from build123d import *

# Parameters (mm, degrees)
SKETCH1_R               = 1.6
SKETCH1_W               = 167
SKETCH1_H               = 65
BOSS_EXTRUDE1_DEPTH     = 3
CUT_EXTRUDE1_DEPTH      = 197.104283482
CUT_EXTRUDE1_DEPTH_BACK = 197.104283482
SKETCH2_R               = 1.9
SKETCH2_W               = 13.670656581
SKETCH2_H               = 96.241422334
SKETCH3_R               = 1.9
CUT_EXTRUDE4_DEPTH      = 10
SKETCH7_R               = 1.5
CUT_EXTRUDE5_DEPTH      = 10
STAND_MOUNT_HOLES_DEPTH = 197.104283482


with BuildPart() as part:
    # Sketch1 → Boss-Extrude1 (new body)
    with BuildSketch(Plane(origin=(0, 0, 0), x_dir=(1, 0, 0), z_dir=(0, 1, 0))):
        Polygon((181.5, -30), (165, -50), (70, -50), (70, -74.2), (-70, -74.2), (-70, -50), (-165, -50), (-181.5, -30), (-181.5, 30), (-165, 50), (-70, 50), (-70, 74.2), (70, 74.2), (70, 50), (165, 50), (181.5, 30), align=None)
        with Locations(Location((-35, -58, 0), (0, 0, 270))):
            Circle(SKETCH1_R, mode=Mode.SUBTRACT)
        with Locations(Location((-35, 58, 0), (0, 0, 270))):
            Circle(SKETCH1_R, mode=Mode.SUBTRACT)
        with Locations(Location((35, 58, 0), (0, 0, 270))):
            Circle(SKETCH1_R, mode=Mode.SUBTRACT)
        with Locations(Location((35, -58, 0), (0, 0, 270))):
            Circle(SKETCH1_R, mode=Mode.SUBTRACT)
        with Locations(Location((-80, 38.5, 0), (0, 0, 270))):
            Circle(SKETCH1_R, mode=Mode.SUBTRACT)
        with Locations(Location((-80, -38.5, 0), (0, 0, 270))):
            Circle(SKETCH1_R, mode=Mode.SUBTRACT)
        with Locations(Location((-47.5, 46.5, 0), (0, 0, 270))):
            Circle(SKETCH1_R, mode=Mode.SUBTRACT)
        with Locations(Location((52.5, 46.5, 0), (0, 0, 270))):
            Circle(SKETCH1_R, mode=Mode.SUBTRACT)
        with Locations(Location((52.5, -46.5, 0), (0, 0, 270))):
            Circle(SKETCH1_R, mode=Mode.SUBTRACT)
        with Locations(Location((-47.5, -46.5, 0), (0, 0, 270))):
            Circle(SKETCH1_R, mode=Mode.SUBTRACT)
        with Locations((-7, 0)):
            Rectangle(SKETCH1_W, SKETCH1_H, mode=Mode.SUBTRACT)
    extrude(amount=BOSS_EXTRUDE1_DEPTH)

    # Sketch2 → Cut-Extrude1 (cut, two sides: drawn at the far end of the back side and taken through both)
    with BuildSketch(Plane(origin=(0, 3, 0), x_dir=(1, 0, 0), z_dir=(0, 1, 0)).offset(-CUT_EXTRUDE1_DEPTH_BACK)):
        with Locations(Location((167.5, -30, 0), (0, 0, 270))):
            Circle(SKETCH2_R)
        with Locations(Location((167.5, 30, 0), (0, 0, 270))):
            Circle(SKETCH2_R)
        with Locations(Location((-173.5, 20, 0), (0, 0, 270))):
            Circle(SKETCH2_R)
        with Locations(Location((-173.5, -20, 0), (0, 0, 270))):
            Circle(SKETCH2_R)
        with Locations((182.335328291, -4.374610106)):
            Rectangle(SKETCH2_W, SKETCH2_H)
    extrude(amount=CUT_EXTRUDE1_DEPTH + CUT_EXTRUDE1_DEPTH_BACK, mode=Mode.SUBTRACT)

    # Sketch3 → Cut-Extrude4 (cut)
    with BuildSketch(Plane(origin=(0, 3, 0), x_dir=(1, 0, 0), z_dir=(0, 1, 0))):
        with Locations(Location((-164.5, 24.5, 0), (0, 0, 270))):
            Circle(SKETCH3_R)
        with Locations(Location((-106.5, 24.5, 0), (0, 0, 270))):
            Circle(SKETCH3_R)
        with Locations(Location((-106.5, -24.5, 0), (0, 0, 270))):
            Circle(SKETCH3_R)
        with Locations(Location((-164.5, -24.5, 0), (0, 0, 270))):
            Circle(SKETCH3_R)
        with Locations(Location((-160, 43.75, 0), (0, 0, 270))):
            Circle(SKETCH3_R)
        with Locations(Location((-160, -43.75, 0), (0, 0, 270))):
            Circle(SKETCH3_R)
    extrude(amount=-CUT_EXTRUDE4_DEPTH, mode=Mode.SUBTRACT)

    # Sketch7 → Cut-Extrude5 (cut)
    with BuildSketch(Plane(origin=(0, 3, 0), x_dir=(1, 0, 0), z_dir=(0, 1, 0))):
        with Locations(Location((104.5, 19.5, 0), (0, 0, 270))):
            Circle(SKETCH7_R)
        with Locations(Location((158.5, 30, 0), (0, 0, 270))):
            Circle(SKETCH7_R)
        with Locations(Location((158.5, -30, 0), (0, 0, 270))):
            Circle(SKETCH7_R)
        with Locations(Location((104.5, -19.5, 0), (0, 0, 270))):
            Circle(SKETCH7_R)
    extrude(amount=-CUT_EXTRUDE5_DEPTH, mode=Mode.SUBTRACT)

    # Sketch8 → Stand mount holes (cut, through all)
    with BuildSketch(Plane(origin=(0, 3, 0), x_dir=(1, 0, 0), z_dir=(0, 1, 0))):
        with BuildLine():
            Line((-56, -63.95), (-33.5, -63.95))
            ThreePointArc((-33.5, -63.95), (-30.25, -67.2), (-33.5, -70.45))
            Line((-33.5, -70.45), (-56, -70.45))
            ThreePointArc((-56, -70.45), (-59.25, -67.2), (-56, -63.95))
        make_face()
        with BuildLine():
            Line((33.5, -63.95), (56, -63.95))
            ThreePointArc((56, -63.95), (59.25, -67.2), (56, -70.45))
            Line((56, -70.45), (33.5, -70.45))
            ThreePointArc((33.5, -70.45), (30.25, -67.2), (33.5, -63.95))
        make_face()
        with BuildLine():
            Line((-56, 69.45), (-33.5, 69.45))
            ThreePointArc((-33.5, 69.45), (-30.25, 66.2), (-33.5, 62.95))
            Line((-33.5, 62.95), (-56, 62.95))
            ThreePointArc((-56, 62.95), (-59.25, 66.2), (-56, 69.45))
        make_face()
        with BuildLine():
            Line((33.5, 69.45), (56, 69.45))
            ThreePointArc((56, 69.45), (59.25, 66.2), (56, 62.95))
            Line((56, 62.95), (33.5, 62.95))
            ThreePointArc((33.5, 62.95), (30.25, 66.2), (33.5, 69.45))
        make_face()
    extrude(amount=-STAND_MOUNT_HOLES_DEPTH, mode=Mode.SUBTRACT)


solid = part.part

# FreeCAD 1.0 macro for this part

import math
import FreeCAD as App
import Part
import Sketcher

V = App.Vector
Q = App.Units.Quantity


def add_polygon(sketch, points):
    """Adds a closed chain of lines whose ends are joined by coincident constraints."""
    first, n = sketch.GeometryCount, len(points)
    for a, b in zip(points, points[1:] + points[:1]):
        sketch.addGeometry(Part.LineSegment(App.Vector(*a, 0), App.Vector(*b, 0)), False)
    for i in range(n):
        sketch.addConstraint(Sketcher.Constraint("Coincident", first + i, 2, first + (i + 1) % n, 1))

doc = App.newDocument("Part")
body = doc.addObject("PartDesign::Body", "Body")

# Sketch on XZ plane
sketch1 = doc.addObject("Sketcher::SketchObject", "Sketch")
body.addObject(sketch1)
sketch1.AttachmentSupport = (doc.XZ_Plane, [""])
sketch1.MapMode = "FlatFace"
add_polygon(sketch1, [(165, 50), (181.5, 30), (181.5, -30), (165, -50), (70, -50), (70, -74.2), (-70, -74.2), (-70, -50), (-165, -50), (-181.5, -30), (-181.5, 30), (-165, 50), (-70, 50), (-70, 74.2), (70, 74.2), (70, 50)])  # lines 0-15
sketch1.addGeometry(Part.Circle(V(35, 58, 0), V(0, 0, 1), 1.6), False)  # 16
sketch1.addGeometry(Part.Circle(V(52.5, 46.5, 0), V(0, 0, 1), 1.6), False)  # 17
sketch1.addGeometry(Part.Circle(V(-35, 58, 0), V(0, 0, 1), 1.6), False)  # 18
sketch1.addGeometry(Part.Circle(V(-47.5, 46.5, 0), V(0, 0, 1), 1.6), False)  # 19
sketch1.addGeometry(Part.Circle(V(-80, 38.5, 0), V(0, 0, 1), 1.6), False)  # 20
sketch1.addGeometry(Part.Circle(V(52.5, -46.5, 0), V(0, 0, 1), 1.6), False)  # 21
sketch1.addGeometry(Part.Circle(V(35, -58, 0), V(0, 0, 1), 1.6), False)  # 22
add_polygon(sketch1, [(-90.5, 32.5), (-90.5, -32.5), (76.5, -32.5), (76.5, 32.5)])  # lines 23-26
sketch1.addGeometry(Part.Circle(V(-47.5, -46.5, 0), V(0, 0, 1), 1.6), False)  # 27
sketch1.addGeometry(Part.Circle(V(-35, -58, 0), V(0, 0, 1), 1.6), False)  # 28
sketch1.addGeometry(Part.Circle(V(-80, -38.5, 0), V(0, 0, 1), 1.6), False)  # 29
sketch1.addConstraint([
    Sketcher.Constraint("Vertical", 1),
    Sketcher.Constraint("Horizontal", 3),
    Sketcher.Constraint("Vertical", 4),
    Sketcher.Constraint("Horizontal", 5),
    Sketcher.Constraint("Vertical", 6),
    Sketcher.Constraint("Horizontal", 7),
    Sketcher.Constraint("Vertical", 9),
    Sketcher.Constraint("Horizontal", 11),
    Sketcher.Constraint("Vertical", 12),
    Sketcher.Constraint("Horizontal", 13),
    Sketcher.Constraint("Vertical", 14),
    Sketcher.Constraint("Horizontal", 15),
    Sketcher.Constraint("Vertical", 23),
    Sketcher.Constraint("Horizontal", 24),
    Sketcher.Constraint("Vertical", 25),
    Sketcher.Constraint("Horizontal", 26),
    Sketcher.Constraint("Equal", 16, 17),
    Sketcher.Constraint("Equal", 17, 18),
    Sketcher.Constraint("Equal", 18, 19),
    Sketcher.Constraint("Equal", 19, 20),
    Sketcher.Constraint("Equal", 20, 21),
    Sketcher.Constraint("Equal", 21, 22),
    Sketcher.Constraint("Equal", 22, 27),
    Sketcher.Constraint("Equal", 27, 28),
    Sketcher.Constraint("Equal", 28, 29),
    Sketcher.Constraint("Symmetric", 18, 3, 22, 3, -1, 1),
    Sketcher.Constraint("Symmetric", 16, 3, 28, 3, -1, 1),
    Sketcher.Constraint("Symmetric", 0, 2, 8, 2, -1, 1),
    Sketcher.Constraint("Symmetric", 2, 2, 10, 2, -1, 1),
    Sketcher.Constraint("Symmetric", 4, 2, 12, 2, -1, 1),
    Sketcher.Constraint("Symmetric", 6, 2, 14, 2, -1, 1),
    Sketcher.Constraint("Symmetric", 16, 3, 18, 3, -2),
    Sketcher.Constraint("Symmetric", 3, 2, 6, 2, -2),
    Sketcher.Constraint("Symmetric", 17, 3, 21, 3, -1),
    Sketcher.Constraint("Symmetric", 19, 3, 27, 3, -1),
    Sketcher.Constraint("Symmetric", 20, 3, 29, 3, -1),
    Sketcher.Constraint("Parallel", 0, 8),
    Sketcher.Constraint("Parallel", 2, 10),
    Sketcher.Constraint("Horizontal", 17, 3, 19, 3),
    Sketcher.Constraint("Horizontal", 1, 2, 8, 2),
    Sketcher.Constraint("Vertical", 7, 2, 10, 2),
    Sketcher.Constraint("Diameter", 16, Q("3.2 mm")),
    Sketcher.Constraint("DistanceX", 3, 2, 3, 1, Q("95 mm")),
    Sketcher.Constraint("DistanceX", 5, 2, 5, 1, Q("140 mm")),
    Sketcher.Constraint("DistanceX", 24, 1, 24, 2, Q("167 mm")),
    Sketcher.Constraint("DistanceY", 1, 2, 1, 1, Q("60 mm")),
    Sketcher.Constraint("DistanceY", 23, 2, 23, 1, Q("65 mm")),
    Sketcher.Constraint("DistanceY", 4, 2, 4, 1, Q("24.2 mm")),
    Sketcher.Constraint("DistanceX", -1, 1, 16, 3, Q("35 mm")),
    Sketcher.Constraint("DistanceY", -1, 1, 16, 3, Q("58 mm")),
    Sketcher.Constraint("DistanceX", 20, 3, -1, 1, Q("80 mm")),
    Sketcher.Constraint("DistanceY", 2, 2, -1, 1, Q("50 mm")),
    Sketcher.Constraint("DistanceX", 19, 3, 17, 3, Q("100 mm")),
    Sketcher.Constraint("DistanceY", 20, 3, 19, 3, Q("8 mm")),
    Sketcher.Constraint("DistanceY", 21, 3, 17, 3, Q("93 mm")),
    Sketcher.Constraint("DistanceX", 17, 3, 0, 2, Q("129 mm")),
    Sketcher.Constraint("DistanceX", 9, 2, 19, 3, Q("134 mm")),
    Sketcher.Constraint("DistanceY", 29, 3, 23, 2, Q("6 mm")),
    Sketcher.Constraint("DistanceX", 23, 2, 27, 3, Q("43 mm")),
])
pad1 = doc.addObject("PartDesign::Pad", "Pad")
body.addObject(pad1)
pad1.Profile = sketch1
pad1.Length = 3
pad1.Reversed = True

# Sketch on XZ plane
sketch2 = doc.addObject("Sketcher::SketchObject", "Sketch001")
body.addObject(sketch2)
sketch2.AttachmentSupport = (doc.XZ_Plane, [""])
sketch2.MapMode = "FlatFace"
sketch2.AttachmentOffset = App.Placement(V(0, 0, -3), App.Rotation())
sketch2.addGeometry(Part.Circle(V(167.5, 30, 0), V(0, 0, 1), 1.9), False)  # 0
sketch2.addGeometry(Part.Circle(V(167.5, -30, 0), V(0, 0, 1), 1.9), False)  # 1
sketch2.addGeometry(Part.Circle(V(-173.5, -20, 0), V(0, 0, 1), 1.9), False)  # 2
sketch2.addGeometry(Part.Circle(V(-173.5, 20, 0), V(0, 0, 1), 1.9), False)  # 3
add_polygon(sketch2, [(175.5, -43.7), (175.5, 52.5), (189.2, 52.5), (189.2, -43.7)])  # lines 4-7
sketch2.addConstraint([
    Sketcher.Constraint("Vertical", 4),
    Sketcher.Constraint("Horizontal", 5),
    Sketcher.Constraint("Vertical", 6),
    Sketcher.Constraint("Horizontal", 7),
    Sketcher.Constraint("Equal", 0, 1),
    Sketcher.Constraint("Equal", 1, 2),
    Sketcher.Constraint("Equal", 2, 3),
    Sketcher.Constraint("Symmetric", 0, 3, 1, 3, -1),
    Sketcher.Constraint("Symmetric", 2, 3, 3, 3, -1),
    Sketcher.Constraint("Diameter", 0, Q("3.8 mm")),
    Sketcher.Constraint("DistanceY", -1, 1, 0, 3, Q("30 mm")),
    Sketcher.Constraint("DistanceY", 2, 3, -1, 1, Q("20 mm")),
    Sketcher.Constraint("DistanceX", 2, 3, 1, 3, Q("341 mm")),
    Sketcher.Constraint("DistanceX", 0, 3, 4, 2, Q("8 mm")),
    Sketcher.Constraint("DistanceX", -1, 1, 0, 3, Q("167.5 mm")),
    Sketcher.Constraint("DistanceY", 6, 2, -1, 1, Q("43.746101 mm")),
    Sketcher.Constraint("DistanceX", 5, 1, 5, 2, Q("13.670657 mm")),
    Sketcher.Constraint("DistanceY", 4, 1, 4, 2, Q("96.241422 mm")),
])
pocket1 = doc.addObject("PartDesign::Pocket", "Pocket")
body.addObject(pocket1)
pocket1.Profile = sketch2
pocket1.Type = "ThroughAll"
pocket1.Midplane = True

# Sketch on XZ plane
sketch3 = doc.addObject("Sketcher::SketchObject", "Sketch002")
body.addObject(sketch3)
sketch3.AttachmentSupport = (doc.XZ_Plane, [""])
sketch3.MapMode = "FlatFace"
sketch3.AttachmentOffset = App.Placement(V(0, 0, -3), App.Rotation())
sketch3.addGeometry([
    Part.Circle(V(-164.5, -24.5, 0), V(0, 0, 1), 1.9),  # 0
    Part.Circle(V(-106.5, -24.5, 0), V(0, 0, 1), 1.9),  # 1
    Part.Circle(V(-106.5, 24.5, 0), V(0, 0, 1), 1.9),  # 2
    Part.Circle(V(-164.5, 24.5, 0), V(0, 0, 1), 1.9),  # 3
    Part.Circle(V(-160, -43.8, 0), V(0, 0, 1), 1.9),  # 4
    Part.Circle(V(-160, 43.8, 0), V(0, 0, 1), 1.9),  # 5
], False)
sketch3.addConstraint([
    Sketcher.Constraint("Equal", 0, 1),
    Sketcher.Constraint("Equal", 1, 2),
    Sketcher.Constraint("Equal", 2, 3),
    Sketcher.Constraint("Equal", 3, 4),
    Sketcher.Constraint("Equal", 4, 5),
    Sketcher.Constraint("Symmetric", 1, 3, 2, 3, -1),
    Sketcher.Constraint("Symmetric", 0, 3, 3, 3, -1),
    Sketcher.Constraint("Symmetric", 4, 3, 5, 3, -1),
    Sketcher.Constraint("Horizontal", 0, 3, 1, 3),
    Sketcher.Constraint("Diameter", 0, Q("3.8 mm")),
    Sketcher.Constraint("DistanceX", 4, 3, -1, 1, Q("160 mm")),
    Sketcher.Constraint("DistanceX", 0, 3, 1, 3, Q("58 mm")),
    Sketcher.Constraint("DistanceY", 1, 3, 2, 3, Q("49 mm")),
    Sketcher.Constraint("DistanceX", 0, 3, -1, 1, Q("164.5 mm")),
    Sketcher.Constraint("DistanceY", 4, 3, 5, 3, Q("87.5 mm")),
])
pocket2 = doc.addObject("PartDesign::Pocket", "Pocket001")
body.addObject(pocket2)
pocket2.Profile = sketch3
pocket2.Length = 10
pocket2.Reversed = True

# Sketch on XZ plane
sketch4 = doc.addObject("Sketcher::SketchObject", "Sketch003")
body.addObject(sketch4)
sketch4.AttachmentSupport = (doc.XZ_Plane, [""])
sketch4.MapMode = "FlatFace"
sketch4.AttachmentOffset = App.Placement(V(0, 0, -3), App.Rotation())
sketch4.addGeometry([
    Part.Circle(V(104.5, -19.5, 0), V(0, 0, 1), 1.5),
    Part.Circle(V(158.5, -30, 0), V(0, 0, 1), 1.5),
    Part.Circle(V(158.5, 30, 0), V(0, 0, 1), 1.5),
    Part.Circle(V(104.5, 19.5, 0), V(0, 0, 1), 1.5),
], False)
sketch4.addConstraint([
    Sketcher.Constraint("Equal", 0, 1),
    Sketcher.Constraint("Equal", 1, 2),
    Sketcher.Constraint("Equal", 2, 3),
    Sketcher.Constraint("Symmetric", 1, 3, 2, 3, -1),
    Sketcher.Constraint("Symmetric", 0, 3, 3, 3, -1),
    Sketcher.Constraint("Diameter", 0, Q("3 mm")),
    Sketcher.Constraint("DistanceY", 1, 3, -1, 1, Q("30 mm")),
    Sketcher.Constraint("DistanceX", 0, 3, 1, 3, Q("54 mm")),
    Sketcher.Constraint("DistanceY", 0, 3, 3, 3, Q("39 mm")),
    Sketcher.Constraint("DistanceX", -1, 1, 0, 3, Q("104.5 mm")),
])
pocket3 = doc.addObject("PartDesign::Pocket", "Pocket002")
body.addObject(pocket3)
pocket3.Profile = sketch4
pocket3.Length = 10
pocket3.Reversed = True

# Sketch on XZ plane
sketch5 = doc.addObject("Sketcher::SketchObject", "Sketch004")
body.addObject(sketch5)
sketch5.AttachmentSupport = (doc.XZ_Plane, [""])
sketch5.MapMode = "FlatFace"
sketch5.AttachmentOffset = App.Placement(V(0, 0, -3), App.Rotation())
sketch5.addGeometry([
    Part.LineSegment(V(-33.5, 64, 0), V(-56, 64, 0)),  # 0
    Part.ArcOfCircle(Part.Circle(V(-56, 67.2, 0), V(0, 0, 1), 3.2), math.radians(90), math.radians(270)),  # 1
    Part.LineSegment(V(-56, 70.5, 0), V(-33.5, 70.5, 0)),  # 2
    Part.ArcOfCircle(Part.Circle(V(-33.5, 67.2, 0), V(0, 0, 1), 3.2), math.radians(-90), math.radians(90)),  # 3
    Part.LineSegment(V(56, 64, 0), V(33.5, 64, 0)),  # 4
    Part.ArcOfCircle(Part.Circle(V(33.5, 67.2, 0), V(0, 0, 1), 3.2), math.radians(90), math.radians(270)),  # 5
    Part.LineSegment(V(33.5, 70.5, 0), V(56, 70.5, 0)),  # 6
    Part.ArcOfCircle(Part.Circle(V(56, 67.2, 0), V(0, 0, 1), 3.2), math.radians(-90), math.radians(90)),  # 7
    Part.LineSegment(V(-33.5, -69.5, 0), V(-56, -69.5, 0)),  # 8
    Part.ArcOfCircle(Part.Circle(V(-56, -66.2, 0), V(0, 0, 1), 3.2), math.radians(90), math.radians(270)),  # 9
    Part.LineSegment(V(-56, -63, 0), V(-33.5, -63, 0)),  # 10
    Part.ArcOfCircle(Part.Circle(V(-33.5, -66.2, 0), V(0, 0, 1), 3.2), math.radians(-90), math.radians(90)),  # 11
    Part.LineSegment(V(56, -69.5, 0), V(33.5, -69.5, 0)),  # 12
    Part.ArcOfCircle(Part.Circle(V(33.5, -66.2, 0), V(0, 0, 1), 3.2), math.radians(90), math.radians(270)),  # 13
    Part.LineSegment(V(33.5, -63, 0), V(56, -63, 0)),  # 14
    Part.ArcOfCircle(Part.Circle(V(56, -66.2, 0), V(0, 0, 1), 3.2), math.radians(-90), math.radians(90)),  # 15
], False)
sketch5.addConstraint([
    Sketcher.Constraint("Tangent", 0, 2, 1, 2),
    Sketcher.Constraint("Tangent", 1, 1, 2, 1),
    Sketcher.Constraint("Tangent", 2, 2, 3, 2),
    Sketcher.Constraint("Tangent", 3, 1, 0, 1),
    Sketcher.Constraint("Tangent", 4, 2, 5, 2),
    Sketcher.Constraint("Tangent", 5, 1, 6, 1),
    Sketcher.Constraint("Tangent", 6, 2, 7, 2),
    Sketcher.Constraint("Tangent", 7, 1, 4, 1),
    Sketcher.Constraint("Tangent", 8, 2, 9, 2),
    Sketcher.Constraint("Tangent", 9, 1, 10, 1),
    Sketcher.Constraint("Tangent", 10, 2, 11, 2),
    Sketcher.Constraint("Tangent", 11, 1, 8, 1),
    Sketcher.Constraint("Tangent", 12, 2, 13, 2),
    Sketcher.Constraint("Tangent", 13, 1, 14, 1),
    Sketcher.Constraint("Tangent", 14, 2, 15, 2),
    Sketcher.Constraint("Tangent", 15, 1, 12, 1),
    Sketcher.Constraint("Horizontal", 0),
    Sketcher.Constraint("Horizontal", 2),
    Sketcher.Constraint("Horizontal", 4),
    Sketcher.Constraint("Horizontal", 6),
    Sketcher.Constraint("Horizontal", 8),
    Sketcher.Constraint("Horizontal", 10),
    Sketcher.Constraint("Horizontal", 12),
    Sketcher.Constraint("Horizontal", 14),
    Sketcher.Constraint("Equal", 3, 5),
    Sketcher.Constraint("Equal", 7, 9),
    Sketcher.Constraint("Equal", 11, 13),
    Sketcher.Constraint("Symmetric", 3, 3, 5, 3, -2),
    Sketcher.Constraint("Symmetric", 11, 3, 13, 3, -2),
    Sketcher.Constraint("Vertical", 1, 3, 9, 3),
    Sketcher.Constraint("Vertical", 3, 3, 11, 3),
    Sketcher.Constraint("Vertical", 7, 3, 15, 3),
    Sketcher.Constraint("Equal", 2, 4),
    Sketcher.Constraint("Radius", 1, Q("3.25 mm")),
    Sketcher.Constraint("DistanceX", 0, 2, 0, 1, Q("22.5 mm")),
    Sketcher.Constraint("DistanceX", 1, 3, -1, 1, Q("56 mm")),
    Sketcher.Constraint("DistanceY", -1, 1, 1, 3, Q("67.2 mm")),
    Sketcher.Constraint("DistanceY", 9, 3, -1, 1, Q("66.2 mm")),
])
pocket4 = doc.addObject("PartDesign::Pocket", "Pocket003")
body.addObject(pocket4)
pocket4.Profile = sketch5
pocket4.Type = "ThroughAll"
pocket4.Reversed = True

doc.recompute()
